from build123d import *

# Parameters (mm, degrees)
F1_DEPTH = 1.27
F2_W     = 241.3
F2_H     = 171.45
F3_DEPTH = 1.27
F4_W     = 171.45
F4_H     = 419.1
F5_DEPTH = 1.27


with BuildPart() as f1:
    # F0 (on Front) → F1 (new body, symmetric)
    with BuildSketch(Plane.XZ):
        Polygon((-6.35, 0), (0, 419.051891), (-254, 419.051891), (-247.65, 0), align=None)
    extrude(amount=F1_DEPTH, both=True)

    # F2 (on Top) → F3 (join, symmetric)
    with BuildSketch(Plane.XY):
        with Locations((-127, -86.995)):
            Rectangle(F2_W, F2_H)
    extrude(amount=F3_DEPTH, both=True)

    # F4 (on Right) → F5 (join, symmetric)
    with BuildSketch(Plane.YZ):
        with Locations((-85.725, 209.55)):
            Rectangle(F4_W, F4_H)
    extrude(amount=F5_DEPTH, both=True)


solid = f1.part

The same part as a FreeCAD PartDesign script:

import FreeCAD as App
import Part
import Sketcher
from FreeCAD import Vector
Q = App.Units.Quantity

doc = App.newDocument("Part")
body = doc.addObject("PartDesign::Body", "Body")

# Sketch on XZ plane
sketch1 = doc.addObject("Sketcher::SketchObject", "Sketch")
body.addObject(sketch1)
sketch1.AttachmentSupport = (doc.XZ_Plane, [""])
sketch1.MapMode = "FlatFace"
sketch1.addGeometry(Part.LineSegment(Vector(-6, 0, 0), Vector(0, 419, 0)), False)
sketch1.addGeometry(Part.LineSegment(Vector(0, 419, 0), Vector(-254, 419, 0)), False)
sketch1.addGeometry(Part.LineSegment(Vector(-254, 419, 0), Vector(-248, 0, 0)), False)
sketch1.addGeometry(Part.LineSegment(Vector(-248, 0, 0), Vector(-6, 0, 0)), False)
sketch1.addConstraint(Sketcher.Constraint("Coincident", 0, 2, 1, 1))
sketch1.addConstraint(Sketcher.Constraint("Coincident", 1, 2, 2, 1))
sketch1.addConstraint(Sketcher.Constraint("Coincident", 2, 2, 3, 1))
sketch1.addConstraint(Sketcher.Constraint("Coincident", 3, 2, 0, 1))
sketch1.addConstraint(Sketcher.Constraint("Horizontal", 1))
sketch1.addConstraint(Sketcher.Constraint("Horizontal", 3))
sketch1.addConstraint(Sketcher.Constraint("PointOnObject", 0, 2, -2))
sketch1.addConstraint(Sketcher.Constraint("PointOnObject", 2, 2, -1))
sketch1.addConstraint(Sketcher.Constraint("Equal", 0, 2))
sketch1.addConstraint(Sketcher.Constraint("DistanceX", 1, 2, 1, 1, Q("10 in")))
sketch1.addConstraint(Sketcher.Constraint("DistanceX", 3, 1, 3, 2, Q("9.5 in")))
sketch1.addConstraint(Sketcher.Constraint("Distance", 0, Q("16.5 in")))
pad1 = doc.addObject("PartDesign::Pad", "Pad")
body.addObject(pad1)
pad1.Profile = sketch1
pad1.Length = Q("0.1 in")
pad1.Midplane = True

# Sketch on XY plane
sketch2 = doc.addObject("Sketcher::SketchObject", "Sketch001")
body.addObject(sketch2)
sketch2.AttachmentSupport = (doc.XY_Plane, [""])
sketch2.MapMode = "FlatFace"
sketch2.addGeometry(Part.LineSegment(Vector(-248, -1, 0), Vector(-248, -173, 0)), False)
sketch2.addGeometry(Part.LineSegment(Vector(-248, -173, 0), Vector(-6, -173, 0)), False)
sketch2.addGeometry(Part.LineSegment(Vector(-6, -173, 0), Vector(-6, -1, 0)), False)
sketch2.addGeometry(Part.LineSegment(Vector(-6, -1, 0), Vector(-248, -1, 0)), False)
sketch2.addConstraint(Sketcher.Constraint("Coincident", 0, 2, 1, 1))
sketch2.addConstraint(Sketcher.Constraint("Coincident", 1, 2, 2, 1))
sketch2.addConstraint(Sketcher.Constraint("Coincident", 2, 2, 3, 1))
sketch2.addConstraint(Sketcher.Constraint("Coincident", 3, 2, 0, 1))
sketch2.addConstraint(Sketcher.Constraint("Vertical", 0))
sketch2.addConstraint(Sketcher.Constraint("Horizontal", 1))
sketch2.addConstraint(Sketcher.Constraint("Vertical", 2))
sketch2.addConstraint(Sketcher.Constraint("Horizontal", 3))
sketch2.addConstraint(Sketcher.Constraint("DistanceX", 1, 1, 1, 2, Q("9.5 in")))
sketch2.addConstraint(Sketcher.Constraint("DistanceY", 0, 2, 0, 1, Q("6.75 in")))
sketch2.addConstraint(Sketcher.Constraint("DistanceY", 0, 2, -1, 1, Q("6.8 in")))
sketch2.addConstraint(Sketcher.Constraint("DistanceX", 0, 2, -1, 1, Q("9.75 in")))
pad2 = doc.addObject("PartDesign::Pad", "Pad001")
body.addObject(pad2)
pad2.Profile = sketch2
pad2.Length = Q("0.1 in")
pad2.Midplane = True

# Sketch on YZ plane
sketch3 = doc.addObject("Sketcher::SketchObject", "Sketch002")
body.addObject(sketch3)
sketch3.AttachmentSupport = (doc.YZ_Plane, [""])
sketch3.MapMode = "FlatFace"
sketch3.addGeometry(Part.LineSegment(Vector(-171, 419, 0), Vector(-171, 0, 0)), False)
sketch3.addGeometry(Part.LineSegment(Vector(-171, 0, 0), Vector(0, 0, 0)), False)
sketch3.addGeometry(Part.LineSegment(Vector(0, 0, 0), Vector(0, 419, 0)), False)
sketch3.addGeometry(Part.LineSegment(Vector(0, 419, 0), Vector(-171, 419, 0)), False)
sketch3.addConstraint(Sketcher.Constraint("Coincident", 0, 2, 1, 1))
sketch3.addConstraint(Sketcher.Constraint("Coincident", 1, 2, 2, 1))
sketch3.addConstraint(Sketcher.Constraint("Coincident", 2, 2, 3, 1))
sketch3.addConstraint(Sketcher.Constraint("Coincident", 3, 2, 0, 1))
sketch3.addConstraint(Sketcher.Constraint("Vertical", 0))
sketch3.addConstraint(Sketcher.Constraint("Horizontal", 1))
sketch3.addConstraint(Sketcher.Constraint("Vertical", 2))
sketch3.addConstraint(Sketcher.Constraint("Horizontal", 3))
sketch3.addConstraint(Sketcher.Constraint("Coincident", 1, 2, -1, 1))
sketch3.addConstraint(Sketcher.Constraint("DistanceY", 0, 2, 0, 1, Q("16.5 in")))
sketch3.addConstraint(Sketcher.Constraint("DistanceX", 1, 1, 1, 2, Q("6.75 in")))
pad3 = doc.addObject("PartDesign::Pad", "Pad002")
body.addObject(pad3)
pad3.Profile = sketch3
pad3.Length = Q("0.1 in")
pad3.Midplane = True

doc.recompute()
